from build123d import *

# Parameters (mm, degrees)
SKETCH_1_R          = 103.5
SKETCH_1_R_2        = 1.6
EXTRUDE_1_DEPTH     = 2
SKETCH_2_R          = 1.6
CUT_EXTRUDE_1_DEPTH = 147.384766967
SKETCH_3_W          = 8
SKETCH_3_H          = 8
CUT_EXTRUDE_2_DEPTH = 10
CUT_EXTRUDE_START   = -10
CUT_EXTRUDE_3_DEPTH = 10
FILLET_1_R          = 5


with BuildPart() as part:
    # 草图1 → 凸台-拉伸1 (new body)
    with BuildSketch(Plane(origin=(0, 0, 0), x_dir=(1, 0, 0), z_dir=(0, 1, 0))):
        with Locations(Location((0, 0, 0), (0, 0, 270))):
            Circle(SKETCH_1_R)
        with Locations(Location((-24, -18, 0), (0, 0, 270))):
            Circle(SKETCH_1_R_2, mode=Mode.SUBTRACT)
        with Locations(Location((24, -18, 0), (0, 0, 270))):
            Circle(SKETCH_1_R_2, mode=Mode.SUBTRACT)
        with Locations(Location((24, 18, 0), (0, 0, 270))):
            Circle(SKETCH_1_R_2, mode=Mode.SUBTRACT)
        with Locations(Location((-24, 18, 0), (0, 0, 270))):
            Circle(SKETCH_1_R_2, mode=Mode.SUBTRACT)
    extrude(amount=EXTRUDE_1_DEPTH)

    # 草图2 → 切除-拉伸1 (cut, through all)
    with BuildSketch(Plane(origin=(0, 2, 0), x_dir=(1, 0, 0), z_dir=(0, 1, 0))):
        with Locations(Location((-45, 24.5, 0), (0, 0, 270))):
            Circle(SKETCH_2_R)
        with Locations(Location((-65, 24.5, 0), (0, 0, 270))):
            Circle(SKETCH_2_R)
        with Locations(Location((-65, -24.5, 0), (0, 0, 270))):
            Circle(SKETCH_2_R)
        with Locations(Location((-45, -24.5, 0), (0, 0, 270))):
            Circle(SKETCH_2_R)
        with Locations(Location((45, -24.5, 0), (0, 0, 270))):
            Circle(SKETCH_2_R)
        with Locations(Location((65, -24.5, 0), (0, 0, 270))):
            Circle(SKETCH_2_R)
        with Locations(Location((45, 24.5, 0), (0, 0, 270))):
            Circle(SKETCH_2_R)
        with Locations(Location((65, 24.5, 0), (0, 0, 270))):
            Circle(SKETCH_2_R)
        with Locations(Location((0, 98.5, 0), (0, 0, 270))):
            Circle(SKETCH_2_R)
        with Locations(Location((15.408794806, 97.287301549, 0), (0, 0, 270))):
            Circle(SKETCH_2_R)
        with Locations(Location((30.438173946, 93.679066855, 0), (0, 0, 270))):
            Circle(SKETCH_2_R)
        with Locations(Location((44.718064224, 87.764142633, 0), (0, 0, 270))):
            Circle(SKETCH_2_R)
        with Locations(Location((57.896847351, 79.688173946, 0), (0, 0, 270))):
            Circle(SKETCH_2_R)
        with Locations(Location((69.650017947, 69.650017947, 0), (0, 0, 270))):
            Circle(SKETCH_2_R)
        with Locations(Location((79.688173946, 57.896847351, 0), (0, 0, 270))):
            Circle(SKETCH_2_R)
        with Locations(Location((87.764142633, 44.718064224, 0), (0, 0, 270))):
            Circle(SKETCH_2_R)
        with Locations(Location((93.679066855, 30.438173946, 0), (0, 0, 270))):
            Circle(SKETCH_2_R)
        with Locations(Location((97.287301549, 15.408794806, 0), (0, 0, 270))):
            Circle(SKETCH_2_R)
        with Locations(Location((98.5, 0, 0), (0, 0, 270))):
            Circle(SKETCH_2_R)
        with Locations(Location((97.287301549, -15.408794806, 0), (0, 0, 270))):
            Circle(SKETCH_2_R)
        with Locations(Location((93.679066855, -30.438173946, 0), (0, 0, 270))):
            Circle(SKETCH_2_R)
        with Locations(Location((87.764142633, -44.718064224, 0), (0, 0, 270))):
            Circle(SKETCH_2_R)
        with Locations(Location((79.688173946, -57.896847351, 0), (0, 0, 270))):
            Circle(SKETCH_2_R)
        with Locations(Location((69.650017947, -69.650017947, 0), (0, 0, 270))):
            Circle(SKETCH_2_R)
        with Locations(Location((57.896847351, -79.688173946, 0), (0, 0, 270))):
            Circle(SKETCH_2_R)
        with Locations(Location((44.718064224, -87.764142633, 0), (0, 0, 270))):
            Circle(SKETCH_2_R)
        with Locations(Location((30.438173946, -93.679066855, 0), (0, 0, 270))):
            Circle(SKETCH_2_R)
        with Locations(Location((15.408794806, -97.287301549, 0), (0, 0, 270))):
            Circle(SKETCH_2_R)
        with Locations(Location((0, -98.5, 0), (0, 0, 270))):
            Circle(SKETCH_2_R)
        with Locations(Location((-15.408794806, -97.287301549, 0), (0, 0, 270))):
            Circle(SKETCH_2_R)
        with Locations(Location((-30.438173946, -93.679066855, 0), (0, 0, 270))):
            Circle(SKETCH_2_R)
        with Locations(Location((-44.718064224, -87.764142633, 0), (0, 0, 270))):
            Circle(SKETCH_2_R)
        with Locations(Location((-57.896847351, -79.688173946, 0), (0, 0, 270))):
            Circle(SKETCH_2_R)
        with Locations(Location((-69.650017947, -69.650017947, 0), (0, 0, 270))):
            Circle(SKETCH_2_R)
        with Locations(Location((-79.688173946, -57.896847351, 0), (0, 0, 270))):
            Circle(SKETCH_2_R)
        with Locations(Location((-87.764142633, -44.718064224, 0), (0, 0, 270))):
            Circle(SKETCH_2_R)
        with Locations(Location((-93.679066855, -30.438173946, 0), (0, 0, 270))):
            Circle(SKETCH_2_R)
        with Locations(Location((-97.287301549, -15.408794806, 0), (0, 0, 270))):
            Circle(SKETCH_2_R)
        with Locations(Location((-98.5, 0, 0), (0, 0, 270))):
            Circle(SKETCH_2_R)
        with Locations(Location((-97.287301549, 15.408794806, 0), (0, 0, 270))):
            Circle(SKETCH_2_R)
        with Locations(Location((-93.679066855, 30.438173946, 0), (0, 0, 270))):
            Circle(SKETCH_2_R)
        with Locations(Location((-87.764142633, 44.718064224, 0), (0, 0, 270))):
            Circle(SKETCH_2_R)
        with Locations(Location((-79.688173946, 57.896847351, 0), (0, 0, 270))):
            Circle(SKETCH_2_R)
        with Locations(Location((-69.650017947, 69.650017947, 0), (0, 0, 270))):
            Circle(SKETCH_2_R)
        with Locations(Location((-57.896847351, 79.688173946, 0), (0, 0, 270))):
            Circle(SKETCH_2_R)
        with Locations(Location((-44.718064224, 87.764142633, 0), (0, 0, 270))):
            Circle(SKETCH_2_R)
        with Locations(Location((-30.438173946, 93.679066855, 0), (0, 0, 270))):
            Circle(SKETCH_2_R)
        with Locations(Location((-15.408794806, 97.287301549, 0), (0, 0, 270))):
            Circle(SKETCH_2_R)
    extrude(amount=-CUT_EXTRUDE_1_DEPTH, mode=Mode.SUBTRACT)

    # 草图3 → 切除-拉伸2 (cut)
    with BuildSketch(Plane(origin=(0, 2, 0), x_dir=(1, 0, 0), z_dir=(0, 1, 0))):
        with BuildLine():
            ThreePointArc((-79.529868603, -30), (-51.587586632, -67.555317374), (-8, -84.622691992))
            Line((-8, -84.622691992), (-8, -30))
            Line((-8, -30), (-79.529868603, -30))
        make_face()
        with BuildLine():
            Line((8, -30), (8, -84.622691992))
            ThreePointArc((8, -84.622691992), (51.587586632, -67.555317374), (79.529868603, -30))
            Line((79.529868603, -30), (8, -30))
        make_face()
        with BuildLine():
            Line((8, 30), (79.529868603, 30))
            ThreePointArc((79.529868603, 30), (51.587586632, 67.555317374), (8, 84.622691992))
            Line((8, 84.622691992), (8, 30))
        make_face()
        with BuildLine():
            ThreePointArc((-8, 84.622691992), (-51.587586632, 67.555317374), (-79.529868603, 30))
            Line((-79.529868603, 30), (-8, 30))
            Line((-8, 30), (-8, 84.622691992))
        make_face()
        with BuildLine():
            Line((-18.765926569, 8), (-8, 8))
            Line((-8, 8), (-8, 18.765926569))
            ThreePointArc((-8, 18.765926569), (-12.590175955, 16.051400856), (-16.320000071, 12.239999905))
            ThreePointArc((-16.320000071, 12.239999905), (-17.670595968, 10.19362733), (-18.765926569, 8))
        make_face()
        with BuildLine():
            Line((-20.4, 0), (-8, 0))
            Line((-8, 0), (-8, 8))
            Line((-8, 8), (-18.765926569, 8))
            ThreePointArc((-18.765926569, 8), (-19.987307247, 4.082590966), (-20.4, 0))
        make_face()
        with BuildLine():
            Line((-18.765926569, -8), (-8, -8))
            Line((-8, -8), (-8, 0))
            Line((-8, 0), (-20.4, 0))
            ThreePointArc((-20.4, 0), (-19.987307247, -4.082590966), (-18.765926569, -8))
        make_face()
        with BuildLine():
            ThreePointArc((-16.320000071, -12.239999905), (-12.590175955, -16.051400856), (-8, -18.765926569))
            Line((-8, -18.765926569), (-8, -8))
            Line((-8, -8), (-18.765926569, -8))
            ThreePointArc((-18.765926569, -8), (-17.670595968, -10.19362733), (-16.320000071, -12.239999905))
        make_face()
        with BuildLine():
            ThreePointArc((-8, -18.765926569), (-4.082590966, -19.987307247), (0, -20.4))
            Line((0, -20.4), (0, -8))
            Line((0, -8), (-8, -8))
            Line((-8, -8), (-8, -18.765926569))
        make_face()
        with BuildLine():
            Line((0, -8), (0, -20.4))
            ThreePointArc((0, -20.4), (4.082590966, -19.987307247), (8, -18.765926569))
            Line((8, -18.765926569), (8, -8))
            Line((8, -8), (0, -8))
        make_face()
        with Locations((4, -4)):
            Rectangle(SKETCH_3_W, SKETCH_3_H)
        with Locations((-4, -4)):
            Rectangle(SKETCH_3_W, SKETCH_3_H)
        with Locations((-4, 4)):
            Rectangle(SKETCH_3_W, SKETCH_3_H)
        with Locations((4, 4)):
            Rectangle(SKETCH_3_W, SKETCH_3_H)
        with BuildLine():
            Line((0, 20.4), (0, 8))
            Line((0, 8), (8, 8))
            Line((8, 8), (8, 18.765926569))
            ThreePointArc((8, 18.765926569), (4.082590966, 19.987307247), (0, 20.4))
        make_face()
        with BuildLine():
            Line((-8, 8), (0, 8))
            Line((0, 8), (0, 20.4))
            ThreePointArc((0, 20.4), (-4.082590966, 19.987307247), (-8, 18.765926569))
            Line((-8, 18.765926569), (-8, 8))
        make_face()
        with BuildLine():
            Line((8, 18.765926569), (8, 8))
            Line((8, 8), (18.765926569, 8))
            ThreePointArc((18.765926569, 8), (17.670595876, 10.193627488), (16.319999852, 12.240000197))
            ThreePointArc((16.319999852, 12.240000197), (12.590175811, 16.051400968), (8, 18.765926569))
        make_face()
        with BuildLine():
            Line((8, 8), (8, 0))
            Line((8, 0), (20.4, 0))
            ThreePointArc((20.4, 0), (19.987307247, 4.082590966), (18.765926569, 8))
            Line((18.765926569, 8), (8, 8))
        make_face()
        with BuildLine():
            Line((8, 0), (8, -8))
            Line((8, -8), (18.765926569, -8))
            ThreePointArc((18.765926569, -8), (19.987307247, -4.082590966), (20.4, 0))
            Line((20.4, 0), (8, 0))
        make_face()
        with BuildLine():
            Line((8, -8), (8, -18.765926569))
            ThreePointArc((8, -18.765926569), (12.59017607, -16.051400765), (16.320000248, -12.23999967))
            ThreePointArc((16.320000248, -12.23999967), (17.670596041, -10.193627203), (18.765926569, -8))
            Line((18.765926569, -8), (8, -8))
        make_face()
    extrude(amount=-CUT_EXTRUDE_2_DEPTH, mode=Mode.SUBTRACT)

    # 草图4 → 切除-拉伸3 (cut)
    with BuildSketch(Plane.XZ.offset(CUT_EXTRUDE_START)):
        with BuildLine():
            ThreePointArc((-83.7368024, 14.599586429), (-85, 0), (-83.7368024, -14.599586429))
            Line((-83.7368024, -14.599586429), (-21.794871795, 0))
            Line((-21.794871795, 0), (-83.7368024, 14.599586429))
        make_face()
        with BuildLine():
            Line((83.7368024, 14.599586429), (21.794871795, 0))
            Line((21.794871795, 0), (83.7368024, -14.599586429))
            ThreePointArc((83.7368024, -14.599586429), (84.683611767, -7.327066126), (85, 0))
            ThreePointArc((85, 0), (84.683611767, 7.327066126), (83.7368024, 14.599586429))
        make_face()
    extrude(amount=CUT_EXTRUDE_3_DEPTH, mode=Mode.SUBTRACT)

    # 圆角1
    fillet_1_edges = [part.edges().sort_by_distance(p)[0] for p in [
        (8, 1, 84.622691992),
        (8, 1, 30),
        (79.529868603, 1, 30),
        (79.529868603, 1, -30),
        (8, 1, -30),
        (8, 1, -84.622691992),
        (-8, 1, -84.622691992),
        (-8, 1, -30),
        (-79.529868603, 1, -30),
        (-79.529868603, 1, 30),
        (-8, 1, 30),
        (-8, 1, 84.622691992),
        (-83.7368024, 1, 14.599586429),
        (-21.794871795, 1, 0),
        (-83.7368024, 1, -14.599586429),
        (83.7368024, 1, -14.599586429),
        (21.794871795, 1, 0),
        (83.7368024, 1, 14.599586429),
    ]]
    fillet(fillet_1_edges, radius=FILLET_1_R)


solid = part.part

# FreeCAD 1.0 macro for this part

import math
import FreeCAD as App
import Part
import Sketcher
from FreeCAD import Vector


def edges_at(feature, points):
    """Names of the edges that pass closest to the given points."""
    edges = feature.Shape.Edges
    near = lambda p: min(range(len(edges)), key=lambda i: edges[i].distToShape(Part.Vertex(*p))[0])
    return sorted({f"Edge{near(p) + 1}" for p in points})

doc = App.newDocument("Part")
params = doc.addObject("Spreadsheet::Sheet", "Params")
for row, (alias, value) in enumerate([
    ("sketch1_diameter", "207 mm"),
    ("sketch1_diameter2", "3.2 mm"),
    ("pad1_length", "2 mm"),
    ("sketch2_diameter", "3.2 mm"),
    ("sketch3_radius", "85 mm"),
    ("sketch3_radius2", "20.4 mm"),
    ("pocket2_length", "10 mm"),
    ("sketch4_radius", "85 mm"),
    ("pocket3_length", "10 mm"),
    ("fillet_radius", "5 mm"),
], start=1):
    params.set(f"A{row}", alias)
    params.set(f"B{row}", "=" + value)
    params.setAlias(f"B{row}", alias)

body = doc.addObject("PartDesign::Body", "Body")

# Sketch on XZ plane
sketch1 = body.newObject("Sketcher::SketchObject", "Sketch")
sketch1.AttachmentSupport = (doc.getObject("XZ_Plane"), [""])
sketch1.MapMode = "FlatFace"
sketch1.addGeometry(Part.Circle(Vector(0, 0, 0), Vector(0, 0, 1), 103.5), False)
sketch1.addGeometry(Part.Circle(Vector(-24, -18, 0), Vector(0, 0, 1), 1.6), False)
sketch1.addGeometry(Part.Circle(Vector(-24, 18, 0), Vector(0, 0, 1), 1.6), False)
sketch1.addGeometry(Part.Circle(Vector(24, -18, 0), Vector(0, 0, 1), 1.6), False)
sketch1.addGeometry(Part.Circle(Vector(24, 18, 0), Vector(0, 0, 1), 1.6), False)
sketch1.addConstraint(Sketcher.Constraint("Coincident", 0, 3, -1, 1))
sketch1.addConstraint(Sketcher.Constraint("Equal", 1, 2))
sketch1.addConstraint(Sketcher.Constraint("Equal", 2, 3))
sketch1.addConstraint(Sketcher.Constraint("Equal", 3, 4))
sketch1.addConstraint(Sketcher.Constraint("Symmetric", 2, 3, 3, 3, -1, 1))
sketch1.addConstraint(Sketcher.Constraint("Symmetric", 1, 3, 4, 3, -1, 1))
sketch1.addConstraint(Sketcher.Constraint("Symmetric", 1, 3, 3, 3, -2))
sketch1.addConstraint(Sketcher.Constraint("Diameter", 0, 207.0))
sketch1.addConstraint(Sketcher.Constraint("Diameter", 1, 3.2))
sketch1.addConstraint(Sketcher.Constraint("DistanceX", 1, 3, -1, 1, 24.0))
sketch1.addConstraint(Sketcher.Constraint("DistanceY", 1, 3, -1, 1, 18.0))
sketch1.setExpression("Constraints[7]", "Params.sketch1_diameter")
sketch1.setExpression("Constraints[8]", "Params.sketch1_diameter2")
pad1 = body.newObject("PartDesign::Pad", "Pad")
pad1.Profile = sketch1
pad1.setExpression("Length", "Params.pad1_length")
pad1.Reversed = True

# Sketch on XZ plane
sketch2 = body.newObject("Sketcher::SketchObject", "Sketch001")
sketch2.AttachmentSupport = (doc.getObject("XZ_Plane"), [""])
sketch2.MapMode = "FlatFace"
sketch2.AttachmentOffset = App.Placement(Vector(0, 0, -2), App.Rotation())
sketch2.addGeometry(Part.Circle(Vector(-45, -24.5, 0), Vector(0, 0, 1), 1.6), False)
sketch2.addGeometry(Part.Circle(Vector(-65, -24.5, 0), Vector(0, 0, 1), 1.6), False)
sketch2.addGeometry(Part.Circle(Vector(-65, 24.5, 0), Vector(0, 0, 1), 1.6), False)
sketch2.addGeometry(Part.Circle(Vector(-45, 24.5, 0), Vector(0, 0, 1), 1.6), False)
sketch2.addGeometry(Part.Circle(Vector(45, 24.5, 0), Vector(0, 0, 1), 1.6), False)
sketch2.addGeometry(Part.Circle(Vector(65, 24.5, 0), Vector(0, 0, 1), 1.6), False)
sketch2.addGeometry(Part.Circle(Vector(45, -24.5, 0), Vector(0, 0, 1), 1.6), False)
sketch2.addGeometry(Part.Circle(Vector(65, -24.5, 0), Vector(0, 0, 1), 1.6), False)
sketch2.addGeometry(Part.Circle(Vector(0, -98.5, 0), Vector(0, 0, 1), 1.6), False)
sketch2.addGeometry(Part.Circle(Vector(15.4, -97.3, 0), Vector(0, 0, 1), 1.6), False)
sketch2.addGeometry(Part.Circle(Vector(30.4, -93.7, 0), Vector(0, 0, 1), 1.6), False)
sketch2.addGeometry(Part.Circle(Vector(44.7, -87.8, 0), Vector(0, 0, 1), 1.6), False)
sketch2.addGeometry(Part.Circle(Vector(57.9, -79.7, 0), Vector(0, 0, 1), 1.6), False)
sketch2.addGeometry(Part.Circle(Vector(69.7, -69.7, 0), Vector(0, 0, 1), 1.6), False)
sketch2.addGeometry(Part.Circle(Vector(79.7, -57.9, 0), Vector(0, 0, 1), 1.6), False)
sketch2.addGeometry(Part.Circle(Vector(87.8, -44.7, 0), Vector(0, 0, 1), 1.6), False)
sketch2.addGeometry(Part.Circle(Vector(93.7, -30.4, 0), Vector(0, 0, 1), 1.6), False)
sketch2.addGeometry(Part.Circle(Vector(97.3, -15.4, 0), Vector(0, 0, 1), 1.6), False)
sketch2.addGeometry(Part.Circle(Vector(98.5, 0, 0), Vector(0, 0, 1), 1.6), False)
sketch2.addGeometry(Part.Circle(Vector(97.3, 15.4, 0), Vector(0, 0, 1), 1.6), False)
sketch2.addGeometry(Part.Circle(Vector(93.7, 30.4, 0), Vector(0, 0, 1), 1.6), False)
sketch2.addGeometry(Part.Circle(Vector(87.8, 44.7, 0), Vector(0, 0, 1), 1.6), False)
sketch2.addGeometry(Part.Circle(Vector(79.7, 57.9, 0), Vector(0, 0, 1), 1.6), False)
sketch2.addGeometry(Part.Circle(Vector(69.7, 69.7, 0), Vector(0, 0, 1), 1.6), False)
sketch2.addGeometry(Part.Circle(Vector(57.9, 79.7, 0), Vector(0, 0, 1), 1.6), False)
sketch2.addGeometry(Part.Circle(Vector(44.7, 87.8, 0), Vector(0, 0, 1), 1.6), False)
sketch2.addGeometry(Part.Circle(Vector(30.4, 93.7, 0), Vector(0, 0, 1), 1.6), False)
sketch2.addGeometry(Part.Circle(Vector(15.4, 97.3, 0), Vector(0, 0, 1), 1.6), False)
sketch2.addGeometry(Part.Circle(Vector(0, 98.5, 0), Vector(0, 0, 1), 1.6), False)
sketch2.addGeometry(Part.Circle(Vector(-15.4, 97.3, 0), Vector(0, 0, 1), 1.6), False)
sketch2.addGeometry(Part.Circle(Vector(-30.4, 93.7, 0), Vector(0, 0, 1), 1.6), False)
sketch2.addGeometry(Part.Circle(Vector(-44.7, 87.8, 0), Vector(0, 0, 1), 1.6), False)
sketch2.addGeometry(Part.Circle(Vector(-57.9, 79.7, 0), Vector(0, 0, 1), 1.6), False)
sketch2.addGeometry(Part.Circle(Vector(-69.7, 69.7, 0), Vector(0, 0, 1), 1.6), False)
sketch2.addGeometry(Part.Circle(Vector(-79.7, 57.9, 0), Vector(0, 0, 1), 1.6), False)
sketch2.addGeometry(Part.Circle(Vector(-87.8, 44.7, 0), Vector(0, 0, 1), 1.6), False)
sketch2.addGeometry(Part.Circle(Vector(-93.7, 30.4, 0), Vector(0, 0, 1), 1.6), False)
sketch2.addGeometry(Part.Circle(Vector(-97.3, 15.4, 0), Vector(0, 0, 1), 1.6), False)
sketch2.addGeometry(Part.Circle(Vector(-98.5, 0, 0), Vector(0, 0, 1), 1.6), False)
sketch2.addGeometry(Part.Circle(Vector(-97.3, -15.4, 0), Vector(0, 0, 1), 1.6), False)
sketch2.addGeometry(Part.Circle(Vector(-93.7, -30.4, 0), Vector(0, 0, 1), 1.6), False)
sketch2.addGeometry(Part.Circle(Vector(-87.8, -44.7, 0), Vector(0, 0, 1), 1.6), False)
sketch2.addGeometry(Part.Circle(Vector(-79.7, -57.9, 0), Vector(0, 0, 1), 1.6), False)
sketch2.addGeometry(Part.Circle(Vector(-69.7, -69.7, 0), Vector(0, 0, 1), 1.6), False)
sketch2.addGeometry(Part.Circle(Vector(-57.9, -79.7, 0), Vector(0, 0, 1), 1.6), False)
sketch2.addGeometry(Part.Circle(Vector(-44.7, -87.8, 0), Vector(0, 0, 1), 1.6), False)
sketch2.addGeometry(Part.Circle(Vector(-30.4, -93.7, 0), Vector(0, 0, 1), 1.6), False)
sketch2.addGeometry(Part.Circle(Vector(-15.4, -97.3, 0), Vector(0, 0, 1), 1.6), False)
sketch2.addConstraint(Sketcher.Constraint("Equal", 0, 1))
sketch2.addConstraint(Sketcher.Constraint("Equal", 1, 2))
sketch2.addConstraint(Sketcher.Constraint("Equal", 2, 3))
sketch2.addConstraint(Sketcher.Constraint("Equal", 3, 4))
sketch2.addConstraint(Sketcher.Constraint("Equal", 4, 5))
sketch2.addConstraint(Sketcher.Constraint("Equal", 5, 6))
sketch2.addConstraint(Sketcher.Constraint("Equal", 6, 7))
sketch2.addConstraint(Sketcher.Constraint("Equal", 7, 8))
sketch2.addConstraint(Sketcher.Constraint("Equal", 8, 9))
sketch2.addConstraint(Sketcher.Constraint("Equal", 9, 10))
sketch2.addConstraint(Sketcher.Constraint("Equal", 10, 11))
sketch2.addConstraint(Sketcher.Constraint("Equal", 11, 12))
sketch2.addConstraint(Sketcher.Constraint("Equal", 12, 13))
sketch2.addConstraint(Sketcher.Constraint("Equal", 13, 14))
sketch2.addConstraint(Sketcher.Constraint("Equal", 14, 15))
sketch2.addConstraint(Sketcher.Constraint("Equal", 15, 16))
sketch2.addConstraint(Sketcher.Constraint("Equal", 16, 17))
sketch2.addConstraint(Sketcher.Constraint("Equal", 17, 18))
sketch2.addConstraint(Sketcher.Constraint("Equal", 18, 19))
sketch2.addConstraint(Sketcher.Constraint("Equal", 19, 20))
sketch2.addConstraint(Sketcher.Constraint("Equal", 20, 21))
sketch2.addConstraint(Sketcher.Constraint("Equal", 21, 22))
sketch2.addConstraint(Sketcher.Constraint("Equal", 22, 23))
sketch2.addConstraint(Sketcher.Constraint("Equal", 23, 24))
sketch2.addConstraint(Sketcher.Constraint("Equal", 24, 25))
sketch2.addConstraint(Sketcher.Constraint("Equal", 25, 26))
sketch2.addConstraint(Sketcher.Constraint("Equal", 26, 27))
sketch2.addConstraint(Sketcher.Constraint("Equal", 27, 28))
sketch2.addConstraint(Sketcher.Constraint("Equal", 28, 29))
sketch2.addConstraint(Sketcher.Constraint("Equal", 29, 30))
sketch2.addConstraint(Sketcher.Constraint("Equal", 30, 31))
sketch2.addConstraint(Sketcher.Constraint("Equal", 31, 32))
sketch2.addConstraint(Sketcher.Constraint("Equal", 32, 33))
sketch2.addConstraint(Sketcher.Constraint("Equal", 33, 34))
sketch2.addConstraint(Sketcher.Constraint("Equal", 34, 35))
sketch2.addConstraint(Sketcher.Constraint("Equal", 35, 36))
sketch2.addConstraint(Sketcher.Constraint("Equal", 36, 37))
sketch2.addConstraint(Sketcher.Constraint("Equal", 37, 38))
sketch2.addConstraint(Sketcher.Constraint("Equal", 38, 39))
sketch2.addConstraint(Sketcher.Constraint("Equal", 39, 40))
sketch2.addConstraint(Sketcher.Constraint("Equal", 40, 41))
sketch2.addConstraint(Sketcher.Constraint("Equal", 41, 42))
sketch2.addConstraint(Sketcher.Constraint("Equal", 42, 43))
sketch2.addConstraint(Sketcher.Constraint("Equal", 43, 44))
sketch2.addConstraint(Sketcher.Constraint("Equal", 44, 45))
sketch2.addConstraint(Sketcher.Constraint("Equal", 45, 46))
sketch2.addConstraint(Sketcher.Constraint("Equal", 46, 47))
sketch2.addConstraint(Sketcher.Constraint("Symmetric", 0, 3, 4, 3, -1, 1))
sketch2.addConstraint(Sketcher.Constraint("Symmetric", 1, 3, 5, 3, -1, 1))
sketch2.addConstraint(Sketcher.Constraint("Symmetric", 3, 3, 6, 3, -1, 1))
sketch2.addConstraint(Sketcher.Constraint("Symmetric", 2, 3, 7, 3, -1, 1))
sketch2.addConstraint(Sketcher.Constraint("Symmetric", 8, 3, 28, 3, -1, 1))
sketch2.addConstraint(Sketcher.Constraint("Symmetric", 9, 3, 29, 3, -1, 1))
sketch2.addConstraint(Sketcher.Constraint("Symmetric", 10, 3, 30, 3, -1, 1))
sketch2.addConstraint(Sketcher.Constraint("Symmetric", 11, 3, 31, 3, -1, 1))
sketch2.addConstraint(Sketcher.Constraint("Symmetric", 12, 3, 32, 3, -1, 1))
sketch2.addConstraint(Sketcher.Constraint("Symmetric", 13, 3, 33, 3, -1, 1))
sketch2.addConstraint(Sketcher.Constraint("Symmetric", 14, 3, 34, 3, -1, 1))
sketch2.addConstraint(Sketcher.Constraint("Symmetric", 15, 3, 35, 3, -1, 1))
sketch2.addConstraint(Sketcher.Constraint("Symmetric", 16, 3, 36, 3, -1, 1))
sketch2.addConstraint(Sketcher.Constraint("Symmetric", 17, 3, 37, 3, -1, 1))
sketch2.addConstraint(Sketcher.Constraint("Symmetric", 18, 3, 38, 3, -1, 1))
sketch2.addConstraint(Sketcher.Constraint("Symmetric", 19, 3, 39, 3, -1, 1))
sketch2.addConstraint(Sketcher.Constraint("Symmetric", 20, 3, 40, 3, -1, 1))
sketch2.addConstraint(Sketcher.Constraint("Symmetric", 21, 3, 41, 3, -1, 1))
sketch2.addConstraint(Sketcher.Constraint("Symmetric", 22, 3, 42, 3, -1, 1))
sketch2.addConstraint(Sketcher.Constraint("Symmetric", 23, 3, 43, 3, -1, 1))
sketch2.addConstraint(Sketcher.Constraint("Symmetric", 24, 3, 44, 3, -1, 1))
sketch2.addConstraint(Sketcher.Constraint("Symmetric", 25, 3, 45, 3, -1, 1))
sketch2.addConstraint(Sketcher.Constraint("Symmetric", 26, 3, 46, 3, -1, 1))
sketch2.addConstraint(Sketcher.Constraint("Symmetric", 27, 3, 47, 3, -1, 1))
sketch2.addConstraint(Sketcher.Constraint("Symmetric", 3, 3, 4, 3, -2))
sketch2.addConstraint(Sketcher.Constraint("Symmetric", 2, 3, 5, 3, -2))
sketch2.addConstraint(Sketcher.Constraint("Symmetric", 27, 3, 29, 3, -2))
sketch2.addConstraint(Sketcher.Constraint("Symmetric", 26, 3, 30, 3, -2))
sketch2.addConstraint(Sketcher.Constraint("Symmetric", 25, 3, 31, 3, -2))
sketch2.addConstraint(Sketcher.Constraint("Symmetric", 24, 3, 32, 3, -2))
sketch2.addConstraint(Sketcher.Constraint("Symmetric", 23, 3, 33, 3, -2))
sketch2.addConstraint(Sketcher.Constraint("Symmetric", 22, 3, 34, 3, -2))
sketch2.addConstraint(Sketcher.Constraint("Symmetric", 21, 3, 35, 3, -2))
sketch2.addConstraint(Sketcher.Constraint("Symmetric", 20, 3, 36, 3, -2))
sketch2.addConstraint(Sketcher.Constraint("Symmetric", 19, 3, 37, 3, -2))
sketch2.addConstraint(Sketcher.Constraint("PointOnObject", 8, 3, -2))
sketch2.addConstraint(Sketcher.Constraint("PointOnObject", 18, 3, -1))
sketch2.addConstraint(Sketcher.Constraint("Horizontal", 0, 3, 1, 3))
sketch2.addConstraint(Sketcher.Constraint("Diameter", 0, 3.2))
sketch2.addConstraint(Sketcher.Constraint("DistanceX", 0, 3, -1, 1, 45.0))
sketch2.addConstraint(Sketcher.Constraint("DistanceX", 1, 3, -1, 1, 65.0))
sketch2.addConstraint(Sketcher.Constraint("DistanceY", 1, 3, 2, 3, 49.0))
sketch2.addConstraint(Sketcher.Constraint("DistanceY", 8, 3, 0, 3, 74.0))
sketch2.addConstraint(Sketcher.Constraint("DistanceX", -1, 1, 18, 3, 98.5))
sketch2.addConstraint(Sketcher.Constraint("DistanceX", 26, 3, 22, 3, 49.25))
sketch2.addConstraint(Sketcher.Constraint("DistanceY", 9, 3, -1, 1, 97.287302))
sketch2.addConstraint(Sketcher.Constraint("DistanceX", -1, 1, 17, 3, 97.287302))
sketch2.addConstraint(Sketcher.Constraint("DistanceX", 9, 3, 10, 3, 15.029379))
sketch2.addConstraint(Sketcher.Constraint("DistanceX", 10, 3, 11, 3, 14.27989))
sketch2.addConstraint(Sketcher.Constraint("DistanceY", 9, 3, 11, 3, 9.523159))
sketch2.addConstraint(Sketcher.Constraint("DistanceY", 11, 3, 12, 3, 8.075969))
sketch2.addConstraint(Sketcher.Constraint("DistanceX", 12, 3, 13, 3, 11.753171))
sketch2.addConstraint(Sketcher.Constraint("DistanceY", 10, 3, 13, 3, 24.029049))
sketch2.addConstraint(Sketcher.Constraint("DistanceY", 13, 3, 14, 3, 11.753171))
sketch2.addConstraint(Sketcher.Constraint("DistanceX", 14, 3, 15, 3, 8.075969))
sketch2.addConstraint(Sketcher.Constraint("DistanceY", 12, 3, 15, 3, 34.97011))
sketch2.addConstraint(Sketcher.Constraint("DistanceY", 15, 3, 16, 3, 14.27989))
sketch2.addConstraint(Sketcher.Constraint("DistanceX", 13, 3, 16, 3, 24.029049))
sketch2.addConstraint(Sketcher.Constraint("DistanceY", 16, 3, 17, 3, 15.029379))
sketch2.addConstraint(Sketcher.Constraint("DistanceX", 15, 3, 17, 3, 9.523159))
sketch2.addConstraint(Sketcher.Constraint("DistanceY", 10, 3, -1, 1, 93.679067))
sketch2.addConstraint(Sketcher.Constraint("DistanceX", -1, 1, 12, 3, 57.896847))
sketch2.setExpression("Constraints[85]", "Params.sketch2_diameter")
pocket1 = body.newObject("PartDesign::Pocket", "Pocket")
pocket1.Profile = sketch2
pocket1.Type = "ThroughAll"
pocket1.Reversed = True

# Sketch on XZ plane
sketch3 = body.newObject("Sketcher::SketchObject", "Sketch002")
sketch3.AttachmentSupport = (doc.getObject("XZ_Plane"), [""])
sketch3.MapMode = "FlatFace"
sketch3.AttachmentOffset = App.Placement(Vector(0, 0, -2), App.Rotation())
sketch3.addGeometry(Part.ArcOfCircle(Part.Circle(Vector(0, 0, 0), Vector(0, 0, 1), 85), math.radians(95), math.radians(159)), False)
sketch3.addGeometry(Part.LineSegment(Vector(-8, 84.6, 0), Vector(-8, 30, 0)), False)
sketch3.addGeometry(Part.LineSegment(Vector(-8, 30, 0), Vector(-79.5, 30, 0)), False)
sketch3.addGeometry(Part.LineSegment(Vector(8, 30, 0), Vector(8, 84.6, 0)), False)
sketch3.addGeometry(Part.ArcOfCircle(Part.Circle(Vector(0, 0, 0), Vector(0, 0, 1), 85), math.radians(21), math.radians(85)), False)
sketch3.addGeometry(Part.LineSegment(Vector(79.5, 30, 0), Vector(8, 30, 0)), False)
sketch3.addGeometry(Part.LineSegment(Vector(8, -30, 0), Vector(79.5, -30, 0)), False)
sketch3.addGeometry(Part.ArcOfCircle(Part.Circle(Vector(0, 0, 0), Vector(0, 0, 1), 85), math.radians(-85), math.radians(-21)), False)
sketch3.addGeometry(Part.LineSegment(Vector(8, -84.6, 0), Vector(8, -30, 0)), False)
sketch3.addGeometry(Part.ArcOfCircle(Part.Circle(Vector(0, 0, 0), Vector(0, 0, 1), 85), math.radians(-159), math.radians(-95)), False)
sketch3.addGeometry(Part.LineSegment(Vector(-79.5, -30, 0), Vector(-8, -30, 0)), False)
sketch3.addGeometry(Part.LineSegment(Vector(-8, -30, 0), Vector(-8, -84.6, 0)), False)
sketch3.addGeometry(Part.ArcOfCircle(Part.Circle(Vector(0, 0, 0), Vector(0, 0, 1), 20.4), math.radians(-143), math.radians(-113)), False)
sketch3.addGeometry(Part.ArcOfCircle(Part.Circle(Vector(0, 0, 0), Vector(0, 0, 1), 20.4), math.radians(-156.91), math.radians(-143.13)), False)
sketch3.addGeometry(Part.ArcOfCircle(Part.Circle(Vector(0, 0, 0), Vector(0, 0, 1), 20.4), math.radians(-180), math.radians(-157)), False)
sketch3.addGeometry(Part.ArcOfCircle(Part.Circle(Vector(0, 0, 0), Vector(0, 0, 1), 20.4), math.radians(157), math.radians(180)), False)
sketch3.addGeometry(Part.ArcOfCircle(Part.Circle(Vector(0, 0, 0), Vector(0, 0, 1), 20.4), math.radians(143.13), math.radians(156.91)), False)
sketch3.addGeometry(Part.ArcOfCircle(Part.Circle(Vector(0, 0, 0), Vector(0, 0, 1), 20.4), math.radians(113), math.radians(143)), False)
sketch3.addGeometry(Part.ArcOfCircle(Part.Circle(Vector(0, 0, 0), Vector(0, 0, 1), 20.4), math.radians(90), math.radians(113)), False)
sketch3.addGeometry(Part.ArcOfCircle(Part.Circle(Vector(0, 0, 0), Vector(0, 0, 1), 20.4), math.radians(67), math.radians(90)), False)
sketch3.addGeometry(Part.ArcOfCircle(Part.Circle(Vector(0, 0, 0), Vector(0, 0, 1), 20.4), math.radians(37), math.radians(67)), False)
sketch3.addGeometry(Part.ArcOfCircle(Part.Circle(Vector(0, 0, 0), Vector(0, 0, 1), 20.4), math.radians(23.09), math.radians(36.87)), False)
sketch3.addGeometry(Part.ArcOfCircle(Part.Circle(Vector(0, 0, 0), Vector(0, 0, 1), 20.4), math.radians(0), math.radians(23)), False)
sketch3.addGeometry(Part.ArcOfCircle(Part.Circle(Vector(0, 0, 0), Vector(0, 0, 1), 20.4), math.radians(-23), math.radians(0)), False)
sketch3.addGeometry(Part.ArcOfCircle(Part.Circle(Vector(0, 0, 0), Vector(0, 0, 1), 20.4), math.radians(-36.87), math.radians(-23.09)), False)
sketch3.addGeometry(Part.ArcOfCircle(Part.Circle(Vector(0, 0, 0), Vector(0, 0, 1), 20.4), math.radians(-67), math.radians(-37)), False)
sketch3.addGeometry(Part.ArcOfCircle(Part.Circle(Vector(0, 0, 0), Vector(0, 0, 1), 20.4), math.radians(-90), math.radians(-67)), False)
sketch3.addGeometry(Part.ArcOfCircle(Part.Circle(Vector(0, 0, 0), Vector(0, 0, 1), 20.4), math.radians(-113), math.radians(-90)), False)
sketch3.addConstraint(Sketcher.Constraint("Coincident", 0, 1, 1, 1))
sketch3.addConstraint(Sketcher.Constraint("Coincident", 1, 2, 2, 1))
sketch3.addConstraint(Sketcher.Constraint("Coincident", 2, 2, 0, 2))
sketch3.addConstraint(Sketcher.Constraint("Coincident", 3, 2, 4, 2))
sketch3.addConstraint(Sketcher.Constraint("Coincident", 4, 1, 5, 1))
sketch3.addConstraint(Sketcher.Constraint("Coincident", 5, 2, 3, 1))
sketch3.addConstraint(Sketcher.Constraint("Coincident", 6, 2, 7, 2))
sketch3.addConstraint(Sketcher.Constraint("Coincident", 7, 1, 8, 1))
sketch3.addConstraint(Sketcher.Constraint("Coincident", 8, 2, 6, 1))
sketch3.addConstraint(Sketcher.Constraint("Coincident", 9, 1, 10, 1))
sketch3.addConstraint(Sketcher.Constraint("Coincident", 10, 2, 11, 1))
sketch3.addConstraint(Sketcher.Constraint("Coincident", 11, 2, 9, 2))
sketch3.addConstraint(Sketcher.Constraint("Tangent", 12, 1, 13, 2))
sketch3.addConstraint(Sketcher.Constraint("Tangent", 13, 1, 14, 2))
sketch3.addConstraint(Sketcher.Constraint("Tangent", 14, 1, 15, 2))
sketch3.addConstraint(Sketcher.Constraint("Tangent", 15, 1, 16, 2))
sketch3.addConstraint(Sketcher.Constraint("Tangent", 16, 1, 17, 2))
sketch3.addConstraint(Sketcher.Constraint("Tangent", 17, 1, 18, 2))
sketch3.addConstraint(Sketcher.Constraint("Tangent", 18, 1, 19, 2))
sketch3.addConstraint(Sketcher.Constraint("Tangent", 19, 1, 20, 2))
sketch3.addConstraint(Sketcher.Constraint("Tangent", 20, 1, 21, 2))
sketch3.addConstraint(Sketcher.Constraint("Tangent", 21, 1, 22, 2))
sketch3.addConstraint(Sketcher.Constraint("Tangent", 22, 1, 23, 2))
sketch3.addConstraint(Sketcher.Constraint("Tangent", 23, 1, 24, 2))
sketch3.addConstraint(Sketcher.Constraint("Tangent", 24, 1, 25, 2))
sketch3.addConstraint(Sketcher.Constraint("Tangent", 25, 1, 26, 2))
sketch3.addConstraint(Sketcher.Constraint("Tangent", 26, 1, 27, 2))
sketch3.addConstraint(Sketcher.Constraint("Tangent", 27, 1, 12, 2))
sketch3.addConstraint(Sketcher.Constraint("Vertical", 1))
sketch3.addConstraint(Sketcher.Constraint("Horizontal", 2))
sketch3.addConstraint(Sketcher.Constraint("Vertical", 3))
sketch3.addConstraint(Sketcher.Constraint("Horizontal", 5))
sketch3.addConstraint(Sketcher.Constraint("Horizontal", 6))
sketch3.addConstraint(Sketcher.Constraint("Vertical", 8))
sketch3.addConstraint(Sketcher.Constraint("Horizontal", 10))
sketch3.addConstraint(Sketcher.Constraint("Vertical", 11))
sketch3.addConstraint(Sketcher.Constraint("Coincident", 0, 3, -1, 1))
sketch3.addConstraint(Sketcher.Constraint("Coincident", 4, 3, -1, 1))
sketch3.addConstraint(Sketcher.Constraint("Coincident", 7, 3, -1, 1))
sketch3.addConstraint(Sketcher.Constraint("Coincident", 9, 3, -1, 1))
sketch3.addConstraint(Sketcher.Constraint("Coincident", 12, 3, -1, 1))
sketch3.addConstraint(Sketcher.Constraint("Coincident", 14, 3, -1, 1))
sketch3.addConstraint(Sketcher.Constraint("Coincident", 16, 3, -1, 1))
sketch3.addConstraint(Sketcher.Constraint("Coincident", 18, 3, -1, 1))
sketch3.addConstraint(Sketcher.Constraint("Coincident", 20, 3, -1, 1))
sketch3.addConstraint(Sketcher.Constraint("Coincident", 22, 3, -1, 1))
sketch3.addConstraint(Sketcher.Constraint("Coincident", 24, 3, -1, 1))
sketch3.addConstraint(Sketcher.Constraint("Equal", 0, 4))
sketch3.addConstraint(Sketcher.Constraint("Equal", 4, 7))
sketch3.addConstraint(Sketcher.Constraint("Equal", 7, 9))
sketch3.addConstraint(Sketcher.Constraint("Equal", 24, 25))
sketch3.addConstraint(Sketcher.Constraint("Symmetric", 1, 2, 8, 2, -1, 1))
sketch3.addConstraint(Sketcher.Constraint("Symmetric", 5, 2, 10, 2, -1, 1))
sketch3.addConstraint(Sketcher.Constraint("Symmetric", 1, 2, 5, 2, -2))
sketch3.addConstraint(Sketcher.Constraint("PointOnObject", 14, 1, -1))
sketch3.addConstraint(Sketcher.Constraint("PointOnObject", 18, 1, -2))
sketch3.addConstraint(Sketcher.Constraint("PointOnObject", 22, 1, -1))
sketch3.addConstraint(Sketcher.Constraint("PointOnObject", 26, 1, -2))
sketch3.addConstraint(Sketcher.Constraint("Horizontal", 17, 1, 19, 1))
sketch3.addConstraint(Sketcher.Constraint("Horizontal", 16, 1, 20, 1))
sketch3.addConstraint(Sketcher.Constraint("Horizontal", 15, 1, 21, 1))
sketch3.addConstraint(Sketcher.Constraint("Horizontal", 13, 1, 23, 1))
sketch3.addConstraint(Sketcher.Constraint("Horizontal", 12, 1, 24, 1))
sketch3.addConstraint(Sketcher.Constraint("Horizontal", 25, 1, 27, 1))
sketch3.addConstraint(Sketcher.Constraint("Vertical", 13, 1, 15, 1))
sketch3.addConstraint(Sketcher.Constraint("Vertical", 12, 1, 16, 1))
sketch3.addConstraint(Sketcher.Constraint("Vertical", 11, 2, 17, 1))
sketch3.addConstraint(Sketcher.Constraint("Vertical", 19, 1, 25, 1))
sketch3.addConstraint(Sketcher.Constraint("Radius", 0, 85.0))
sketch3.addConstraint(Sketcher.Constraint("Radius", 12, 20.4))
sketch3.addConstraint(Sketcher.Constraint("DistanceX", 0, 1, -1, 1, 8.0))
sketch3.addConstraint(Sketcher.Constraint("DistanceY", -1, 1, 1, 2, 30.0))
sketch3.addConstraint(Sketcher.Constraint("DistanceY", 13, 1, -1, 1, 8.0))
sketch3.addConstraint(Sketcher.Constraint("DistanceX", 12, 1, -1, 1, 16.32))
sketch3.setExpression("Constraints[68]", "Params.sketch3_radius")
sketch3.setExpression("Constraints[69]", "Params.sketch3_radius2")
pocket2 = body.newObject("PartDesign::Pocket", "Pocket001")
pocket2.Profile = sketch3
pocket2.setExpression("Length", "Params.pocket2_length")
pocket2.Reversed = True

# Sketch on XZ plane
sketch4 = body.newObject("Sketcher::SketchObject", "Sketch003")
sketch4.AttachmentSupport = (doc.getObject("XZ_Plane"), [""])
sketch4.MapMode = "FlatFace"
sketch4.AttachmentOffset = App.Placement(Vector(0, 0, -10), App.Rotation())
sketch4.addGeometry(Part.ArcOfCircle(Part.Circle(Vector(0, 0, 0), Vector(0, 0, 1), 85), math.radians(170.11), math.radians(189.89)), False)
sketch4.addGeometry(Part.LineSegment(Vector(-84, -15, 0), Vector(-22, 0, 0)), False)
sketch4.addGeometry(Part.LineSegment(Vector(-22, 0, 0), Vector(-84, 15, 0)), False)
sketch4.addGeometry(Part.LineSegment(Vector(84, 15, 0), Vector(22, 0, 0)), False)
sketch4.addGeometry(Part.LineSegment(Vector(22, 0, 0), Vector(84, -15, 0)), False)
sketch4.addGeometry(Part.ArcOfCircle(Part.Circle(Vector(0, 0, 0), Vector(0, 0, 1), 85), math.radians(-9.89), math.radians(0)), False)
sketch4.addGeometry(Part.ArcOfCircle(Part.Circle(Vector(0, 0, 0), Vector(0, 0, 1), 85), math.radians(0), math.radians(9.89)), False)
sketch4.addConstraint(Sketcher.Constraint("Coincident", 0, 2, 1, 1))
sketch4.addConstraint(Sketcher.Constraint("Coincident", 1, 2, 2, 1))
sketch4.addConstraint(Sketcher.Constraint("Coincident", 2, 2, 0, 1))
sketch4.addConstraint(Sketcher.Constraint("Coincident", 3, 2, 4, 1))
sketch4.addConstraint(Sketcher.Constraint("Coincident", 4, 2, 5, 1))
sketch4.addConstraint(Sketcher.Constraint("Tangent", 5, 2, 6, 1))
sketch4.addConstraint(Sketcher.Constraint("Coincident", 6, 2, 3, 1))
sketch4.addConstraint(Sketcher.Constraint("Coincident", 0, 3, -1, 1))
sketch4.addConstraint(Sketcher.Constraint("Coincident", 5, 3, -1, 1))
sketch4.addConstraint(Sketcher.Constraint("Equal", 0, 5))
sketch4.addConstraint(Sketcher.Constraint("Equal", 5, 6))
sketch4.addConstraint(Sketcher.Constraint("Symmetric", 1, 2, 3, 2, -1, 1))
sketch4.addConstraint(Sketcher.Constraint("PointOnObject", 1, 2, -1))
sketch4.addConstraint(Sketcher.Constraint("PointOnObject", 5, 2, -1))
sketch4.addConstraint(Sketcher.Constraint("Parallel", 1, 3))
sketch4.addConstraint(Sketcher.Constraint("Parallel", 2, 4))
sketch4.addConstraint(Sketcher.Constraint("Horizontal", 0, 2, 4, 2))
sketch4.addConstraint(Sketcher.Constraint("Radius", 0, 85.0))
sketch4.addConstraint(Sketcher.Constraint("DistanceX", 1, 2, -1, 1, 21.794872))
sketch4.addConstraint(Sketcher.Constraint("DistanceX", 0, 2, 1, 2, 61.941931))
sketch4.setExpression("Constraints[17]", "Params.sketch4_radius")
pocket3 = body.newObject("PartDesign::Pocket", "Pocket002")
pocket3.Profile = sketch4
pocket3.setExpression("Length", "Params.pocket3_length")
pocket3.Reversed = True
doc.recompute()

fillet = body.newObject("PartDesign::Fillet", "Fillet")
fillet.Base = (pocket3, edges_at(pocket3, [
    (8, 1, 84.623),
    (8, 1, 30),
    (79.53, 1, 30),
    (79.53, 1, -30),
    (8, 1, -30),
    (8, 1, -84.623),
    (-8, 1, -84.623),
    (-8, 1, -30),
    (-79.53, 1, -30),
    (-79.53, 1, 30),
    (-8, 1, 30),
    (-8, 1, 84.623),
    (-83.737, 1, 14.6),
    (-21.795, 1, 0),
    (-83.737, 1, -14.6),
    (83.737, 1, -14.6),
    (21.795, 1, 0),
    (83.737, 1, 14.6),
]))
fillet.setExpression("Radius", "Params.fillet_radius")

doc.recompute()
